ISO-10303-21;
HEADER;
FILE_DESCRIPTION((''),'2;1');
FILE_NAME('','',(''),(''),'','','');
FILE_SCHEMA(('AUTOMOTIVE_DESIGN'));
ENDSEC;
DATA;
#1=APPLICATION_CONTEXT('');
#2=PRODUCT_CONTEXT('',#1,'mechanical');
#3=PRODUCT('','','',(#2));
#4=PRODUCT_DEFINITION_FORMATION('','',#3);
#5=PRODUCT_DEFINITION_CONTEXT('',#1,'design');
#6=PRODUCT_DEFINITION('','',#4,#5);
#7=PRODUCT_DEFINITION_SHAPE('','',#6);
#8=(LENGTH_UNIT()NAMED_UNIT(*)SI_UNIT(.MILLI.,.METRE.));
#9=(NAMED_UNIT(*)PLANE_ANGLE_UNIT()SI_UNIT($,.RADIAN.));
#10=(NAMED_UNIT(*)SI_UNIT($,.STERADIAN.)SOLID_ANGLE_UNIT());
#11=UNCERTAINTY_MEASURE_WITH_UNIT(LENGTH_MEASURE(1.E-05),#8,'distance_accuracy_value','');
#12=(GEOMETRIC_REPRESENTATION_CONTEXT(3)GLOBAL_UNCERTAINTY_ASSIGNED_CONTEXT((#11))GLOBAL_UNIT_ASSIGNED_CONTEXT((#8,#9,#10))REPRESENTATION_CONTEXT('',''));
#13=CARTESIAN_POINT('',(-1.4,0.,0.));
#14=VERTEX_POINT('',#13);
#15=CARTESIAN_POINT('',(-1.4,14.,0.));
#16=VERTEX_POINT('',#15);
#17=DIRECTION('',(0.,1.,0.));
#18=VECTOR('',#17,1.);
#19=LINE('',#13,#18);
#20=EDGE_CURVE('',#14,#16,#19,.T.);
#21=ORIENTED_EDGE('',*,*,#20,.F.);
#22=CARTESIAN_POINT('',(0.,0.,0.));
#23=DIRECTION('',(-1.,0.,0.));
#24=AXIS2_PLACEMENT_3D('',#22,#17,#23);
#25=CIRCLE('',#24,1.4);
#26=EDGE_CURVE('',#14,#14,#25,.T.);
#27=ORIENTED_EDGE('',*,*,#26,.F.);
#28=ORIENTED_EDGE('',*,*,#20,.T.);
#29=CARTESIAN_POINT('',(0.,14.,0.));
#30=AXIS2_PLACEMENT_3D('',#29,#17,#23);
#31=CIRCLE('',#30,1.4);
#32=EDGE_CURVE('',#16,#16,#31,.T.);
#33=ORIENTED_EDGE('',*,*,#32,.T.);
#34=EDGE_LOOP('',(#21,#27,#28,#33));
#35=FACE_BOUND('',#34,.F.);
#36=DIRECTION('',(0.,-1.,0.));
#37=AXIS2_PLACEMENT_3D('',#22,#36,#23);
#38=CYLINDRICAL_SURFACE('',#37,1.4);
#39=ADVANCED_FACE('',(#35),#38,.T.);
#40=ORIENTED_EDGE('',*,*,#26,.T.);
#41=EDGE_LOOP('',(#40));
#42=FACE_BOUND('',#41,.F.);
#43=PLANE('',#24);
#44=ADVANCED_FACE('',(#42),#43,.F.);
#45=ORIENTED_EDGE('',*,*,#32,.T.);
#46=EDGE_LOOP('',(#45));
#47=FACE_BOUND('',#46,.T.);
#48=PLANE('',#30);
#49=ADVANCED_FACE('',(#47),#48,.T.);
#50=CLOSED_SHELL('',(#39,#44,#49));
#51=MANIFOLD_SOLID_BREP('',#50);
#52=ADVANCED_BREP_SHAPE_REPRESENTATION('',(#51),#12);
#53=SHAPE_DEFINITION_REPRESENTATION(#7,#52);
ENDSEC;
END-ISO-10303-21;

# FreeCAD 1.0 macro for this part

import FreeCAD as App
import Part
import Sketcher
from FreeCAD import Vector

doc = App.newDocument("Part")
body = doc.addObject("PartDesign::Body", "Body")

# Sketch on XZ plane
sketch1 = doc.addObject("Sketcher::SketchObject", "Sketch")
body.addObject(sketch1)
sketch1.AttachmentSupport = (doc.XZ_Plane, [""])
sketch1.MapMode = "FlatFace"
sketch1.addGeometry(Part.Circle(Vector(0, 0, 0), Vector(0, 0, 1), 1.4), False)
sketch1.addConstraint([
    Sketcher.Constraint("Coincident", 0, 3, -1, 1),
    Sketcher.Constraint("Diameter", 0, 2.8),
])
pad1 = doc.addObject("PartDesign::Pad", "Pad")
body.addObject(pad1)
pad1.Profile = sketch1
pad1.Length = 14
pad1.Reversed = True

doc.recompute()
